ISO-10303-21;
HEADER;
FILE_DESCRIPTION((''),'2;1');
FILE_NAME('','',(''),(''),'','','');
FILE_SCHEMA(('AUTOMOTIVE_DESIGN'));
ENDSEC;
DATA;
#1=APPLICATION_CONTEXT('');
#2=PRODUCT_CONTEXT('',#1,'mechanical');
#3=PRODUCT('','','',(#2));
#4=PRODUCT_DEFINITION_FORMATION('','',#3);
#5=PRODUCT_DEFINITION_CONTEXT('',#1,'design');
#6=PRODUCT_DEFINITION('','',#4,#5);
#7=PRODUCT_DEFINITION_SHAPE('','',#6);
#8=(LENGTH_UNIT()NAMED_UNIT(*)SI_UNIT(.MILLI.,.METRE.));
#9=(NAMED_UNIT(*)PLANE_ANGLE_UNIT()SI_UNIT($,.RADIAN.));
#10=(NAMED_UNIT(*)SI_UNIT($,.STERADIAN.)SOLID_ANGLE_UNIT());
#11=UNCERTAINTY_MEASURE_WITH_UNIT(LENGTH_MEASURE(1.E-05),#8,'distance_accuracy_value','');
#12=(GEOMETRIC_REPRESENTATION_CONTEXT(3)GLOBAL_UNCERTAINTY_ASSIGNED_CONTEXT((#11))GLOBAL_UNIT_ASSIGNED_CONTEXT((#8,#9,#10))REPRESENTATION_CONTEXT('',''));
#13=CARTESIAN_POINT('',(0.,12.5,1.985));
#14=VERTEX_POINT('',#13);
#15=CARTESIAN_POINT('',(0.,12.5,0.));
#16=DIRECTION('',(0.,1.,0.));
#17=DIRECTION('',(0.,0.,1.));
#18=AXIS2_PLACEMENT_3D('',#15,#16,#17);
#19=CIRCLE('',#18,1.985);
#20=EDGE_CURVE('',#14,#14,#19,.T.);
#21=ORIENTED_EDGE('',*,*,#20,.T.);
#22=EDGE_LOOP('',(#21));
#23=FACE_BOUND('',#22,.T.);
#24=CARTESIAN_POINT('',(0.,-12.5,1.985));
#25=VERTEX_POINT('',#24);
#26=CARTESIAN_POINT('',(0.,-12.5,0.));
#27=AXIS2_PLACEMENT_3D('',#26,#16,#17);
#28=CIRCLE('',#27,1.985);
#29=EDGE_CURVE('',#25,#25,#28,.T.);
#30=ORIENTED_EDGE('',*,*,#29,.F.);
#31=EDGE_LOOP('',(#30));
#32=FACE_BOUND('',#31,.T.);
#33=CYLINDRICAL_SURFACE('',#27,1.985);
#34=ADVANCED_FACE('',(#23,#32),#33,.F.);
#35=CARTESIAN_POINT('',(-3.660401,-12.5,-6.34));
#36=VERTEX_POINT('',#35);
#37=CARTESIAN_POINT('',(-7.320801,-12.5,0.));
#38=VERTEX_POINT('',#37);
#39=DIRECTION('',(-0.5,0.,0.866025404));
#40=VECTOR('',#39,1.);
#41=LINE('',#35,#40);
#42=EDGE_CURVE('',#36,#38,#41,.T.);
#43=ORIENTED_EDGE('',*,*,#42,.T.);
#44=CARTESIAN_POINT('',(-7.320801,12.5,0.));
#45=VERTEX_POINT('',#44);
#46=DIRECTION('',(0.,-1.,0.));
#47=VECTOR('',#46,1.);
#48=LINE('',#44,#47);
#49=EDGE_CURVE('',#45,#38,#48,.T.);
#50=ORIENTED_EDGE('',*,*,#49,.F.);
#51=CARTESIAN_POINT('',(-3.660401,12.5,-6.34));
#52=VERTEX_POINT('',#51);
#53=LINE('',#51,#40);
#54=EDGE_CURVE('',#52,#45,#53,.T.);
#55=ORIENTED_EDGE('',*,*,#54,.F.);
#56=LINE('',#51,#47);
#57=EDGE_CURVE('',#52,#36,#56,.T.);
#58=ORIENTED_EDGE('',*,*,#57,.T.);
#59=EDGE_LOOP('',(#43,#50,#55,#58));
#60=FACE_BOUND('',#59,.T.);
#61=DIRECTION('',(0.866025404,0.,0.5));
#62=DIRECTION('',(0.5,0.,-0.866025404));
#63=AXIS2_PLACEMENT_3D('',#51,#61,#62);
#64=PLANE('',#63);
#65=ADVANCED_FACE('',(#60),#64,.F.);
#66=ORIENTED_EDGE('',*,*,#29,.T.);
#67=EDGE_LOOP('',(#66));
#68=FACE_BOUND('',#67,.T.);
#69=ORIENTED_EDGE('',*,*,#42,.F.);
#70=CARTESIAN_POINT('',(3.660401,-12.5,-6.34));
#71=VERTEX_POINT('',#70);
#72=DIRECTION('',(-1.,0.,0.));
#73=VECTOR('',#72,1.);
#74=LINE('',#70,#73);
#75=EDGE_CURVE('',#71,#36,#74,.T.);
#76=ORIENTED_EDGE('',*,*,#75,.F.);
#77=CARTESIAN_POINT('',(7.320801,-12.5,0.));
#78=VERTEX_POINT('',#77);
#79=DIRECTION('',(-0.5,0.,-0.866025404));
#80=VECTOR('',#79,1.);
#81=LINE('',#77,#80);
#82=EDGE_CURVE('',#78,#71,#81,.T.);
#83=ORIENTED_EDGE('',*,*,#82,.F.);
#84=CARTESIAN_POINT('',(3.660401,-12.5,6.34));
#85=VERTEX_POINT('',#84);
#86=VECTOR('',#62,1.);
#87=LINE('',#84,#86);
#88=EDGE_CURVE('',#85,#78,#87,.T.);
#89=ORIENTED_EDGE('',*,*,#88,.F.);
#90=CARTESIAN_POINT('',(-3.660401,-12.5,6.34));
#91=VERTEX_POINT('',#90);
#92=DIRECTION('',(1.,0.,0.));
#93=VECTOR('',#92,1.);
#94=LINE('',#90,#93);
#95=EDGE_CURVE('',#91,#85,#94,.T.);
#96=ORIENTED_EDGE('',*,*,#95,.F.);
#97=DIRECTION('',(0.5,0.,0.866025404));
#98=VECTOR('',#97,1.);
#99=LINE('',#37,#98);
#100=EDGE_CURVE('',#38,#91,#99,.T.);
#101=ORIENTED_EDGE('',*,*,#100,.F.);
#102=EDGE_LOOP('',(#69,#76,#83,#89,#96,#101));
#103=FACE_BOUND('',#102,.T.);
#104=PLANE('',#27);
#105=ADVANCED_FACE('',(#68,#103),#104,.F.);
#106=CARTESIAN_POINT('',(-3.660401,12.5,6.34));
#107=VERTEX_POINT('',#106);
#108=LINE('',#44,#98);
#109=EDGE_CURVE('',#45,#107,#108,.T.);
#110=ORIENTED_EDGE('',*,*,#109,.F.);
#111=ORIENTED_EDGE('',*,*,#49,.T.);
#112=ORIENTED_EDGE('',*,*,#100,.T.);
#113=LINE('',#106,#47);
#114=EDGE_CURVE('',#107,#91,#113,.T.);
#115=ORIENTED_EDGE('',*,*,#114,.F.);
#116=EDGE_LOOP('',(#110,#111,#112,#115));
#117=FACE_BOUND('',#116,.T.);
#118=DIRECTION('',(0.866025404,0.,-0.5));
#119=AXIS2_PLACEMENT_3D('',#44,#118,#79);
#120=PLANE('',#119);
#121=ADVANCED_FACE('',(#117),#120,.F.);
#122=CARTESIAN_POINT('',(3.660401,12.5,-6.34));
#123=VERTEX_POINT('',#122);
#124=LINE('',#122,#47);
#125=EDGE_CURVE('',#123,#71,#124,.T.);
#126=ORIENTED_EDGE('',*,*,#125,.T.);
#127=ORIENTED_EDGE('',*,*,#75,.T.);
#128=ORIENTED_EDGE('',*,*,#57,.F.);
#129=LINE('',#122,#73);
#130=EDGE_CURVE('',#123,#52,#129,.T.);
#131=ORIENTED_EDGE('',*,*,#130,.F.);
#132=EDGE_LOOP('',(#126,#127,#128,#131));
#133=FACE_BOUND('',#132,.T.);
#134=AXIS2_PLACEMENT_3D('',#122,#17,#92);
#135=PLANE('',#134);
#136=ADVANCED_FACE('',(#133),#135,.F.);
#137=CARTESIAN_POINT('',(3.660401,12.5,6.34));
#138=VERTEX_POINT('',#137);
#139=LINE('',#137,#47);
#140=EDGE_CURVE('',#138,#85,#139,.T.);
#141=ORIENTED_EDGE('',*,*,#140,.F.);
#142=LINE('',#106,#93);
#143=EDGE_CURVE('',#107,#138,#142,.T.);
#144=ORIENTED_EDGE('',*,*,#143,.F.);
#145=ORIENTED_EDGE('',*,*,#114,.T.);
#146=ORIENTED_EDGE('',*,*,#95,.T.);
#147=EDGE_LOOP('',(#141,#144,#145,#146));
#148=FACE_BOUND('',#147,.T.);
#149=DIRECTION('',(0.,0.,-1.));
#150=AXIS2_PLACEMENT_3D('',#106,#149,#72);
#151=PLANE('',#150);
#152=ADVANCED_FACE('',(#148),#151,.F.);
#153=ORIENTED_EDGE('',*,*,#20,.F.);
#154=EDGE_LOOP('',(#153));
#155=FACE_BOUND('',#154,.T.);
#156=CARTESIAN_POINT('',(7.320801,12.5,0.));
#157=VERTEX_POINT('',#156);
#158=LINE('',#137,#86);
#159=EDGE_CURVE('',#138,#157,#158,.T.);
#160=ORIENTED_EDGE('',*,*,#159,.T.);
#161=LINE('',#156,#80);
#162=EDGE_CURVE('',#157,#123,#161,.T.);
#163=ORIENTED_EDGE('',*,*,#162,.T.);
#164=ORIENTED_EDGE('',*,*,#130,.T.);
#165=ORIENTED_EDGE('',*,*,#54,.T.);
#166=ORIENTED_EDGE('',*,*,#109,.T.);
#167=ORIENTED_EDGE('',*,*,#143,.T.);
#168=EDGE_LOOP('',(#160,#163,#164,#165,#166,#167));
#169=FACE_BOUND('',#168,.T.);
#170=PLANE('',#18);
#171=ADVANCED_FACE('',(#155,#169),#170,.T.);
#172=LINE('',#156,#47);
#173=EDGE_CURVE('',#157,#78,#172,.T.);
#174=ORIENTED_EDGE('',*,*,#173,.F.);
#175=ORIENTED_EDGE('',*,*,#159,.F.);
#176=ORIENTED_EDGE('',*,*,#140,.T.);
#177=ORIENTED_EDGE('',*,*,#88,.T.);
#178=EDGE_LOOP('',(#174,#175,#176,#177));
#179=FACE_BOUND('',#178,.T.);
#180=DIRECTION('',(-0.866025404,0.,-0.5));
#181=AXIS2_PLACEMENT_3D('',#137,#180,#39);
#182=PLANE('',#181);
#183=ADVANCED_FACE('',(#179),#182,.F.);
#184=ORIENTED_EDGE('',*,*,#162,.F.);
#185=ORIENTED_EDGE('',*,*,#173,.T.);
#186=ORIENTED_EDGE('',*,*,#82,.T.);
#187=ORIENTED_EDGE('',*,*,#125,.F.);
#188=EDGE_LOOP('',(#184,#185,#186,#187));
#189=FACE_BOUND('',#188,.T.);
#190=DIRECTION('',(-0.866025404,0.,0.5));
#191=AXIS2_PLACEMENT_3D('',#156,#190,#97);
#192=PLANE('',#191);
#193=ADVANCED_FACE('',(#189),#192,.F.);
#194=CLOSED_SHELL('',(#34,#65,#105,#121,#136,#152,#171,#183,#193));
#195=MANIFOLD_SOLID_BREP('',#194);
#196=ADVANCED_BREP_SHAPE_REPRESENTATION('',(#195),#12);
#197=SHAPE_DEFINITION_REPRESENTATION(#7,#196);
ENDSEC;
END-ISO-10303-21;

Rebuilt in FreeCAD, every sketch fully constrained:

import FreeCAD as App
import Part
import Sketcher
Q = App.Units.Quantity


def add_polygon(sketch, points):
    """Adds a closed chain of lines whose ends are joined by coincident constraints."""
    first, n = sketch.GeometryCount, len(points)
    for a, b in zip(points, points[1:] + points[:1]):
        sketch.addGeometry(Part.LineSegment(App.Vector(*a, 0), App.Vector(*b, 0)), False)
    for i in range(n):
        sketch.addConstraint(Sketcher.Constraint("Coincident", first + i, 2, first + (i + 1) % n, 1))

doc = App.newDocument("Part")
body = doc.addObject("PartDesign::Body", "Body")

sketch1 = doc.addObject("Sketcher::SketchObject", "Sketch")
body.addObject(sketch1)
sketch1.AttachmentSupport = (doc.XZ_Plane, [""])
sketch1.MapMode = "FlatFace"
add_polygon(sketch1, [(7, 0), (4, -6), (-4, -6), (-7, 0), (-4, 6), (4, 6)])
sketch1.addConstraint([
    Sketcher.Constraint("Horizontal", 1),
    Sketcher.Constraint("Horizontal", 4),
    Sketcher.Constraint("Symmetric", 0, 2, 3, 2, -1, 1),
    Sketcher.Constraint("Symmetric", 2, 2, 5, 2, -1, 1),
    Sketcher.Constraint("PointOnObject", 2, 2, -1),
    Sketcher.Constraint("Parallel", 2, 5),
    Sketcher.Constraint("Vertical", 1, 2, 3, 2),
    Sketcher.Constraint("Angle", 0, Q("-120 deg")),
    Sketcher.Constraint("DistanceY", 0, 2, -1, 1, Q("6.34 mm")),
    Sketcher.Constraint("DistanceX", 1, 2, 1, 1, Q("7.320801 mm")),
])
pad1 = doc.addObject("PartDesign::Pad", "Pad")
body.addObject(pad1)
pad1.Profile = sketch1
pad1.Length = 25
pad1.Midplane = True

sketch2 = doc.addObject("Sketcher::SketchObject", "Sketch001")
body.addObject(sketch2)
sketch2.AttachmentSupport = (doc.XZ_Plane, [""])
sketch2.MapMode = "FlatFace"
sketch2.addGeometry(Part.Circle(App.Vector(0, 0, 0), App.Vector(0, 0, 1), 2), False)
sketch2.addConstraint([
    Sketcher.Constraint("Coincident", 0, 3, -1, 1),
    Sketcher.Constraint("Diameter", 0, Q("3.97 mm")),
])
pocket1 = doc.addObject("PartDesign::Pocket", "Pocket")
body.addObject(pocket1)
pocket1.Profile = sketch2
pocket1.Type = "ThroughAll"
pocket1.Midplane = True

doc.recompute()
